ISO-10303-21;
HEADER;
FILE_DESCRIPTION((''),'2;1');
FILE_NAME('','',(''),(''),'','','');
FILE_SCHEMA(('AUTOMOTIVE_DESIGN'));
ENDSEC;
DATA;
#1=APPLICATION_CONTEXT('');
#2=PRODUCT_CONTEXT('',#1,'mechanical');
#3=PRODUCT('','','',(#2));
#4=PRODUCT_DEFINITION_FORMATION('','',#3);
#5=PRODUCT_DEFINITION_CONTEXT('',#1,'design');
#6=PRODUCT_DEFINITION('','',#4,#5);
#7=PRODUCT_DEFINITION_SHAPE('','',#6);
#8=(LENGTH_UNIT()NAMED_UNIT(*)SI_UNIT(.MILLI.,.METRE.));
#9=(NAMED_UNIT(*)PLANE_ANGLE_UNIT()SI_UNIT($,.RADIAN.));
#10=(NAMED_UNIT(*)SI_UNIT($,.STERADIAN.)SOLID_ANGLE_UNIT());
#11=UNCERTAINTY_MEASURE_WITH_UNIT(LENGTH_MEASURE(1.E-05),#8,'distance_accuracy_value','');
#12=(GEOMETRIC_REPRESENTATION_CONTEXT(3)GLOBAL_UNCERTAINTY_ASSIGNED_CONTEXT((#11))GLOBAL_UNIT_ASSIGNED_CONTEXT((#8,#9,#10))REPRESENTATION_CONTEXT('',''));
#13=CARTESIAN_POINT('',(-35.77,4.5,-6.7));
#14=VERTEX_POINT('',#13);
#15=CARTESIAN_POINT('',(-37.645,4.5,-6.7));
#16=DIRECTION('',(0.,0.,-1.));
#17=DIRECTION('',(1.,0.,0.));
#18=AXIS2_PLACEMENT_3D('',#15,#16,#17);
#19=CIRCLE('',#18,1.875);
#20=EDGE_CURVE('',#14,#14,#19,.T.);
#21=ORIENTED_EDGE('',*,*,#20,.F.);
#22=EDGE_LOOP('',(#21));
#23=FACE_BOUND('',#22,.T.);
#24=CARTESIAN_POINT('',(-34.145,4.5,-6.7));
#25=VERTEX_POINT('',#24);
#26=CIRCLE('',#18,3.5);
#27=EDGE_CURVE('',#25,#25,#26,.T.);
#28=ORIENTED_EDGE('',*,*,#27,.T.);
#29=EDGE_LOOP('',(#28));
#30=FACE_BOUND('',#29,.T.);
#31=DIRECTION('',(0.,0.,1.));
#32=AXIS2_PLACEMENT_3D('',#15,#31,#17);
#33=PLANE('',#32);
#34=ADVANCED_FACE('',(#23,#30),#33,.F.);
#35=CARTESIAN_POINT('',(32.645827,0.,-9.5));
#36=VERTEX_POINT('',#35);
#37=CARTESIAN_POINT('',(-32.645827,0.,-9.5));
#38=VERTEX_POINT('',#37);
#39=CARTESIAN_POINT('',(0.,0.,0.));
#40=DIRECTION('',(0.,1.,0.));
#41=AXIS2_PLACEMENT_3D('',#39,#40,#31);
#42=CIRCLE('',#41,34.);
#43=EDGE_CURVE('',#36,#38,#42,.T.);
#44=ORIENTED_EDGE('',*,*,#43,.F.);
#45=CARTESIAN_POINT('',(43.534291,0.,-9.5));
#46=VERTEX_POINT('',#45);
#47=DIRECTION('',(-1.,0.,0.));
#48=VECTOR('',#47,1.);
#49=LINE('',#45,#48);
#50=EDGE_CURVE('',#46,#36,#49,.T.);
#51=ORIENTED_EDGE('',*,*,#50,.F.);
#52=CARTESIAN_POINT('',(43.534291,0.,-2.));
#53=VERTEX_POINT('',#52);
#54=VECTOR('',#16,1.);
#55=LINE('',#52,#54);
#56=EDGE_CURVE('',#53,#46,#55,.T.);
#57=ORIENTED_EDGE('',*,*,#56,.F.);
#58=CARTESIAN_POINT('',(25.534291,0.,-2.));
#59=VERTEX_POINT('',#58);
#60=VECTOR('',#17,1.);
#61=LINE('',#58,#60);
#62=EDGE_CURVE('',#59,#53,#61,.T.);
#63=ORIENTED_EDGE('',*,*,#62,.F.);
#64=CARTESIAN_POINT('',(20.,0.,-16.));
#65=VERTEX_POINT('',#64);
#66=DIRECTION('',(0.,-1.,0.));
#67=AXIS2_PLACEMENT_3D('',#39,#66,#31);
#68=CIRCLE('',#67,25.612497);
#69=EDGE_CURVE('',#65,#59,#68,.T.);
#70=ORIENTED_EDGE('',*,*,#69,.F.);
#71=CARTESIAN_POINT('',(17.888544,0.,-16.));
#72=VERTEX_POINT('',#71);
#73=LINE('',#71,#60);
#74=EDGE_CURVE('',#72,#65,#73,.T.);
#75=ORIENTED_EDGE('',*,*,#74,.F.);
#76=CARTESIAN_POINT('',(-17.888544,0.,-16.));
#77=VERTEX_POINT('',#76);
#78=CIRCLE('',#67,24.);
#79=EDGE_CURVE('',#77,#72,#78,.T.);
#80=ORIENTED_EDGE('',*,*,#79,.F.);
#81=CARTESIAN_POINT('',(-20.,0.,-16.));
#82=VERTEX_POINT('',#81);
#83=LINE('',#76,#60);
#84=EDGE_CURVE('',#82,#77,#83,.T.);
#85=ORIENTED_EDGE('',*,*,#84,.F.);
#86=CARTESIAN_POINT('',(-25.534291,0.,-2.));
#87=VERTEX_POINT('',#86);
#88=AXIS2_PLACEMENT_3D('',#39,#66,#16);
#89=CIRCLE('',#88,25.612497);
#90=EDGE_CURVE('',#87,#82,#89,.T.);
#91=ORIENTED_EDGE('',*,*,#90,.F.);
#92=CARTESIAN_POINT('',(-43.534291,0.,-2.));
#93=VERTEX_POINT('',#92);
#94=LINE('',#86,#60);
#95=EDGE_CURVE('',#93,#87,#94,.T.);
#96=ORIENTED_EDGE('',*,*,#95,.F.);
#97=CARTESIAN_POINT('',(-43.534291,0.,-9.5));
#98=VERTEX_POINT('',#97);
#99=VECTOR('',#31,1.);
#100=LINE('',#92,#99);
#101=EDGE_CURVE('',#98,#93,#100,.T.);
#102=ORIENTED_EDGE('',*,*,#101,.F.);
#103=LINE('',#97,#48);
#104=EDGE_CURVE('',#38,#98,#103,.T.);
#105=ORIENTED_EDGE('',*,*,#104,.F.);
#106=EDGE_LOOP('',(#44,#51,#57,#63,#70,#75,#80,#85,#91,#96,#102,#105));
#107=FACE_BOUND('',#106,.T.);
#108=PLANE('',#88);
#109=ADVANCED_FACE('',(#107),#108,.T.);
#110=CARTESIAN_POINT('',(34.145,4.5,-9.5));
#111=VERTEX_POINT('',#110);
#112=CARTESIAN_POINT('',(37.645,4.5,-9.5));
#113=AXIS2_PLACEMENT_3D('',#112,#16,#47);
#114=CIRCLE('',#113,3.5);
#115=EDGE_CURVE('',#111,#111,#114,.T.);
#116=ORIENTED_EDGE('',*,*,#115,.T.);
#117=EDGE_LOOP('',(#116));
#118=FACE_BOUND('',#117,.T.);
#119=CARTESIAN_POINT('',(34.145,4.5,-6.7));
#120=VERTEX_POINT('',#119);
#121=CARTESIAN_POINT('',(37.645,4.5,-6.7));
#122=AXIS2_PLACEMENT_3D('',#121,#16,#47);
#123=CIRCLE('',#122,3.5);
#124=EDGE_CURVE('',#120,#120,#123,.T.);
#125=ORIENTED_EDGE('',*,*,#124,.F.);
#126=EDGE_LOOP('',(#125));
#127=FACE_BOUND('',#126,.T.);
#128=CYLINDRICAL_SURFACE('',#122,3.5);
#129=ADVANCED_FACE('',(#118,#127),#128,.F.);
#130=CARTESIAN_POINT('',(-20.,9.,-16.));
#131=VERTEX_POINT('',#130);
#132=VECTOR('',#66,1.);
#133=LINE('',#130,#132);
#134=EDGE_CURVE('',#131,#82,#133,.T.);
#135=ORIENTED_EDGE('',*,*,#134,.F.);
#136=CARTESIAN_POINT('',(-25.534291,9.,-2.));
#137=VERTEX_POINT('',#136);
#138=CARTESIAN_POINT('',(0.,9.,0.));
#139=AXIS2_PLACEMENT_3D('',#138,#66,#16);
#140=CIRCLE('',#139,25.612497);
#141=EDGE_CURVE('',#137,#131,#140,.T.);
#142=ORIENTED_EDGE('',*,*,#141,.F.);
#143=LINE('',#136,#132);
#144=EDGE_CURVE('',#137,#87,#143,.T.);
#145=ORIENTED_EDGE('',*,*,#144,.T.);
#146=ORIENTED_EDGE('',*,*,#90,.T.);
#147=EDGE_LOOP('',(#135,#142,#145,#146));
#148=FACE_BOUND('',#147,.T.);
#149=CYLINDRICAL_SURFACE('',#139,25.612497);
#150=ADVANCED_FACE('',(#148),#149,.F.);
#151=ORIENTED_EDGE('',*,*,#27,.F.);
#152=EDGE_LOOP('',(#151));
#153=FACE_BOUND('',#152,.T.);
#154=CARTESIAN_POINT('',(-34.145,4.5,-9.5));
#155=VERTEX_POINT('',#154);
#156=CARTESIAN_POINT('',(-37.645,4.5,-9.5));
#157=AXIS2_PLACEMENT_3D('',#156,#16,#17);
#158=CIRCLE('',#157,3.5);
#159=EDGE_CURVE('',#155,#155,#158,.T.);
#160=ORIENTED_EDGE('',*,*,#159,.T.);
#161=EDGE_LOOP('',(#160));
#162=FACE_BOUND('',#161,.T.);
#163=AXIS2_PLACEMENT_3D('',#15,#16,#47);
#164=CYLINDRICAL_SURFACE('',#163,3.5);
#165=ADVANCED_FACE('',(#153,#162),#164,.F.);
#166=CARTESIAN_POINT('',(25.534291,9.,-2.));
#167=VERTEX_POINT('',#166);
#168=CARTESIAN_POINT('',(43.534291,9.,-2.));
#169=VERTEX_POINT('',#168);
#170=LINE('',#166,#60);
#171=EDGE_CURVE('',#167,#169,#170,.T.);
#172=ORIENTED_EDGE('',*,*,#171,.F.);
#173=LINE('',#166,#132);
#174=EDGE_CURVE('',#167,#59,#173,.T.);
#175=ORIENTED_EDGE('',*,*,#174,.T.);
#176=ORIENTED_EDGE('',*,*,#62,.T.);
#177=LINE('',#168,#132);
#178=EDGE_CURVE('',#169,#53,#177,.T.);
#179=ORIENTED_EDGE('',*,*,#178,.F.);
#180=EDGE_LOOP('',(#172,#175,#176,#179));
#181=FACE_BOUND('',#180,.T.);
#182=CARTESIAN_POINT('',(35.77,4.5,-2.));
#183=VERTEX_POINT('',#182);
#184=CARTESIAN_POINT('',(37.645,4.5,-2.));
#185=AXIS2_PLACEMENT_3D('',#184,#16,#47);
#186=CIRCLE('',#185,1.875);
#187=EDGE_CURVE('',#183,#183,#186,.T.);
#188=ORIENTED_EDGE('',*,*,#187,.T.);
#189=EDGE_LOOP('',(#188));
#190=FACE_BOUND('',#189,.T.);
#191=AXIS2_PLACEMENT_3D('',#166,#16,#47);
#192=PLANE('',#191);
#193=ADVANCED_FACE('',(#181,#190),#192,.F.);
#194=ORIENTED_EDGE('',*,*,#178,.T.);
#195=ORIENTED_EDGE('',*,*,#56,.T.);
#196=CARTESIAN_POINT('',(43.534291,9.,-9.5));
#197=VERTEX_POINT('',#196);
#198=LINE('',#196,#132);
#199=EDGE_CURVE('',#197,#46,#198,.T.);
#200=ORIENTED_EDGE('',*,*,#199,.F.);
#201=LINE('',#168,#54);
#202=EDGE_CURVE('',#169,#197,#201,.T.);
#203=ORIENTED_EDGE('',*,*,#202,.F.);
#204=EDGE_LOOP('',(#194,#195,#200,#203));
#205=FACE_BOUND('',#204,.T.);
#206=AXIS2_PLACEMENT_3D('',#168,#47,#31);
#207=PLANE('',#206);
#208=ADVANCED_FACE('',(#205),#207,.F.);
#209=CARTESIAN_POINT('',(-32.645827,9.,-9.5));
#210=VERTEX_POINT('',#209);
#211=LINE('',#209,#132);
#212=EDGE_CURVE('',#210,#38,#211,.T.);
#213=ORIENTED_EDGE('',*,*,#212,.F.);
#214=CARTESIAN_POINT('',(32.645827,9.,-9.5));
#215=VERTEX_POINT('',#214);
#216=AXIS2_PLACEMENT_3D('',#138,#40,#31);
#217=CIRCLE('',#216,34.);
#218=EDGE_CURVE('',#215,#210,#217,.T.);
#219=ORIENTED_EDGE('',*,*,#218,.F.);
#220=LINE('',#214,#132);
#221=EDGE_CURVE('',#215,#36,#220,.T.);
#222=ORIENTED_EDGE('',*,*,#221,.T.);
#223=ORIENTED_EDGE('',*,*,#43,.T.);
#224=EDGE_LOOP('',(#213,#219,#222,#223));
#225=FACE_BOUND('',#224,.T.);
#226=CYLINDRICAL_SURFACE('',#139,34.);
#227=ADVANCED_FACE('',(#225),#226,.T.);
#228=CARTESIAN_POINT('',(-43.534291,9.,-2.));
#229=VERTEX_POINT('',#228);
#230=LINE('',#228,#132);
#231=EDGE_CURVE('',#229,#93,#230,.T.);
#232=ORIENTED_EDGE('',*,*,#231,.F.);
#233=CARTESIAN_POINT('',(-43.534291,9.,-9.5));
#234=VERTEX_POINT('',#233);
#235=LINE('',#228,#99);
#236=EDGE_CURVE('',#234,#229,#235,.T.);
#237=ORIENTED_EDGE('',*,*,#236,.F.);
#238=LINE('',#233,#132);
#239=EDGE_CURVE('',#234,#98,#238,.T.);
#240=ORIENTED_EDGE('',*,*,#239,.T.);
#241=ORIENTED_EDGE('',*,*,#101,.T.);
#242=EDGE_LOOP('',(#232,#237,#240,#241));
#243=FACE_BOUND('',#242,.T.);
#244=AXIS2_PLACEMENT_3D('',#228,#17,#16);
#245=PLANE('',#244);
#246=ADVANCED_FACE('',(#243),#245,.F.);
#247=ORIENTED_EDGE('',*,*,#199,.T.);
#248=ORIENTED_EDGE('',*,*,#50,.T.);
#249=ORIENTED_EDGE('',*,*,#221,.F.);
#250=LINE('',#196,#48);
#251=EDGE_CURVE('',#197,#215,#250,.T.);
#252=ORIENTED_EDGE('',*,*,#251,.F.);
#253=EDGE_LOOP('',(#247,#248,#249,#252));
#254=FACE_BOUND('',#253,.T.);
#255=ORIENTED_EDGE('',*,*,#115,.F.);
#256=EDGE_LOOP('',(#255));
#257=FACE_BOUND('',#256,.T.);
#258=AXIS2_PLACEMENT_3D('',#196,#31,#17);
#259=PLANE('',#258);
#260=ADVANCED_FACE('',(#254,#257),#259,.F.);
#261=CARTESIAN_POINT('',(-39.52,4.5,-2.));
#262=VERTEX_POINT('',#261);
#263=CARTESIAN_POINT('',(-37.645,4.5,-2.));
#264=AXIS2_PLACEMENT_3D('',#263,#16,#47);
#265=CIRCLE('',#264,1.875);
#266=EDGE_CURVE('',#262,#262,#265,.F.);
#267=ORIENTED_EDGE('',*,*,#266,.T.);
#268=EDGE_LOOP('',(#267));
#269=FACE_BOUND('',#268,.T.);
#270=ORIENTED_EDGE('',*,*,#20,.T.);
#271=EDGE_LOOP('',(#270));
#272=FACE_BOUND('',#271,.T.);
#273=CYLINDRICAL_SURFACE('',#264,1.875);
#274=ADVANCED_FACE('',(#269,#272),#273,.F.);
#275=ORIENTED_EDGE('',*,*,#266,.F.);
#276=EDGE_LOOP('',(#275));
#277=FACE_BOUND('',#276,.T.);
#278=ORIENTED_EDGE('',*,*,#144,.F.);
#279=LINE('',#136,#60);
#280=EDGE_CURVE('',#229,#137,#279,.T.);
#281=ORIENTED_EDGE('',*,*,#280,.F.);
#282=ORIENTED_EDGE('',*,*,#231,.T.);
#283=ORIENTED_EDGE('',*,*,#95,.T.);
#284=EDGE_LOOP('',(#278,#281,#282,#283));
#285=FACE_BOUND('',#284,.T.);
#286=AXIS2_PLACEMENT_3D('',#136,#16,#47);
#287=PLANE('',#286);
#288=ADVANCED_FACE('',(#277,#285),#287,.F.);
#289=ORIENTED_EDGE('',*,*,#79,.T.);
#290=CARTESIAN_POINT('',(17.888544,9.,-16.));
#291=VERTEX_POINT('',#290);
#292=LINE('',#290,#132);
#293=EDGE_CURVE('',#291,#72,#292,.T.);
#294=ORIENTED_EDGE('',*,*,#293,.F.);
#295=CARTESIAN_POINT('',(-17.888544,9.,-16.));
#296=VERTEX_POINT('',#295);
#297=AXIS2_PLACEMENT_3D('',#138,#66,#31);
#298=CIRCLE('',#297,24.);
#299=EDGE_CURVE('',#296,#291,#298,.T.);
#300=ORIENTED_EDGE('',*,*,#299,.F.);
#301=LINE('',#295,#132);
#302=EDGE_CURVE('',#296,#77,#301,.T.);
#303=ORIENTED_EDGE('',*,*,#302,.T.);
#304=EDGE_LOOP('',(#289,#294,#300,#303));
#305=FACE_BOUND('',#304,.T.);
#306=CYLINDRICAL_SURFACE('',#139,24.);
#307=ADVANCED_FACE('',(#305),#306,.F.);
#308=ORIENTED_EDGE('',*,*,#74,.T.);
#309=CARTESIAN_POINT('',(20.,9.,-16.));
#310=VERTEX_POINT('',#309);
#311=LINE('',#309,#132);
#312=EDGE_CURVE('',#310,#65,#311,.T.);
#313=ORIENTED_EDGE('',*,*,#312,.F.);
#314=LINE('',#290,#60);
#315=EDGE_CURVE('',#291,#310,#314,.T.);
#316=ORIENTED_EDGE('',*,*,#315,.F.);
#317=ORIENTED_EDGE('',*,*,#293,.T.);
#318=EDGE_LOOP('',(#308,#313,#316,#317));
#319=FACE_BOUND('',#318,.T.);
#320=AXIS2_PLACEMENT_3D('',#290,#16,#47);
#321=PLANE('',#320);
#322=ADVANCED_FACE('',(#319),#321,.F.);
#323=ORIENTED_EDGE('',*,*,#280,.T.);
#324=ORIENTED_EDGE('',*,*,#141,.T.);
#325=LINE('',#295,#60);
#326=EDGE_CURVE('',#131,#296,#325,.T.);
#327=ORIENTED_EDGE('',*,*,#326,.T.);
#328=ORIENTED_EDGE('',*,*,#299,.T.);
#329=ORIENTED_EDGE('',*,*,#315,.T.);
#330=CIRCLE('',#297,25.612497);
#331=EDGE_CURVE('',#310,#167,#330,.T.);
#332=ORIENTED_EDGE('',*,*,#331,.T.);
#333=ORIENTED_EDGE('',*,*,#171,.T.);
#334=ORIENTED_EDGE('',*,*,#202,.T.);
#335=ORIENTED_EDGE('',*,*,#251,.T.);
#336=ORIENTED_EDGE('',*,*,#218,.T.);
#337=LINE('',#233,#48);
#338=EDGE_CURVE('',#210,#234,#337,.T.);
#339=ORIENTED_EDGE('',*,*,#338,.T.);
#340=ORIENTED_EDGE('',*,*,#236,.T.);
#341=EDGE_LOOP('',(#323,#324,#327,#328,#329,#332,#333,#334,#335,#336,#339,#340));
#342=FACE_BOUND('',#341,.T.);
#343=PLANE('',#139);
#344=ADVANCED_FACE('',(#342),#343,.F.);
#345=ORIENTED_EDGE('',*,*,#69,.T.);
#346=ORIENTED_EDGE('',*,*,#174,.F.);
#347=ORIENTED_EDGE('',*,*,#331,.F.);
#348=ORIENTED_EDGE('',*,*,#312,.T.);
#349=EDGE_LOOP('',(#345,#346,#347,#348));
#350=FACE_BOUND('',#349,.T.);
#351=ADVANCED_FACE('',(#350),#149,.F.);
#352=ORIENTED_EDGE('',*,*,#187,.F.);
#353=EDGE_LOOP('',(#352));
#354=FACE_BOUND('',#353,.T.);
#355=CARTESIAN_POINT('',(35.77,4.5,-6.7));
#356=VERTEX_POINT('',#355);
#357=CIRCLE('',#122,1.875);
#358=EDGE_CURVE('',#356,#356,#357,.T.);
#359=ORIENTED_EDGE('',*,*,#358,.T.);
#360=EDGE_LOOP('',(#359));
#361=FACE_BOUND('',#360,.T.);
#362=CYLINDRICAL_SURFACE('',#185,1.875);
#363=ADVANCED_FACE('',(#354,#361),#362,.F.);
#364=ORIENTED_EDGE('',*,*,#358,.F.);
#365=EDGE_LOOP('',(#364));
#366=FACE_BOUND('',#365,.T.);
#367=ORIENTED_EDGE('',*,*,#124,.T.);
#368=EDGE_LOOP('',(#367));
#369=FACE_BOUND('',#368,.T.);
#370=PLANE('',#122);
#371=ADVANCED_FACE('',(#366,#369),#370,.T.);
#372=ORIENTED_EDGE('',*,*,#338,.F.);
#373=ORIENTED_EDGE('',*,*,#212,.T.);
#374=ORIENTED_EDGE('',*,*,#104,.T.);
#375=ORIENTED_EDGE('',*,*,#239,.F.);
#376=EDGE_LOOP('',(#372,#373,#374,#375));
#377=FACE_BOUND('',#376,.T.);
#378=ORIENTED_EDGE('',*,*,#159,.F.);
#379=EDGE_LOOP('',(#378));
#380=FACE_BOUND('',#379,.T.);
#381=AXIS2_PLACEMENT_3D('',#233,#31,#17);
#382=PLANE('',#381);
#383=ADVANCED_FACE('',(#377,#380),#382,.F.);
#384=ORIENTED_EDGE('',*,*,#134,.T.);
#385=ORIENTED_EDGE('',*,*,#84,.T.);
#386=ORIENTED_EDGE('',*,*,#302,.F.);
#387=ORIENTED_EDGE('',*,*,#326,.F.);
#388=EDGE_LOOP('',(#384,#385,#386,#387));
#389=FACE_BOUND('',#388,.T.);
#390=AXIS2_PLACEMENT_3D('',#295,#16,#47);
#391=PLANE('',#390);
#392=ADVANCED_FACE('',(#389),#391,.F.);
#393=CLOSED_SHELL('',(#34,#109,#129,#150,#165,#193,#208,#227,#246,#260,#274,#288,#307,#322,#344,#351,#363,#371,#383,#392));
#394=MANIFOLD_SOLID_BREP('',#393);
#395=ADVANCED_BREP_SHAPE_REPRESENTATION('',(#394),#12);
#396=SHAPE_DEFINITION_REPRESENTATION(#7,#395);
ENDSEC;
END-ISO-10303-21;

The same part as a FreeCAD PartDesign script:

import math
import FreeCAD as App
import Part
import Sketcher

V = App.Vector
Q = App.Units.Quantity

doc = App.newDocument("Part")
params = doc.addObject("Spreadsheet::Sheet", "Params")
for row, (alias, value) in enumerate([
    ("sketch1_radius", "34 mm"),
    ("sketch1_radius2", "24 mm"),
    ("sketch1_width", "18 mm"),
    ("sketch1_height", "7.5 mm"),
    ("pad1_length", "9 mm"),
    ("sketch2_diameter", "3.75 mm"),
    ("sketch3_diameter", "7 mm"),
    ("sketch3_diameter2", "3.75 mm"),
    ("pocket2_length", "2.8 mm"),
], start=1):
    params.set(f"A{row}", alias)
    params.set(f"B{row}", "=" + value)
    params.setAlias(f"B{row}", alias)

body = doc.addObject("PartDesign::Body", "Body")

sketch1 = body.newObject("Sketcher::SketchObject", "Sketch")
sketch1.AttachmentSupport = (doc.getObject("XZ_Plane"), [""])
sketch1.MapMode = "FlatFace"
sketch1.addGeometry(Part.LineSegment(V(17.9, -16, 0), V(20, -16, 0)), False)
sketch1.addGeometry(Part.ArcOfCircle(Part.Circle(V(0, 0, 0), V(0, 0, 1), 25.6), math.radians(-39), math.radians(-4)), False)
sketch1.addGeometry(Part.LineSegment(V(25.5, -2, 0), V(43.5, -2, 0)), False)
sketch1.addGeometry(Part.LineSegment(V(43.5, -2, 0), V(43.5, -9.5, 0)), False)
sketch1.addGeometry(Part.LineSegment(V(43.5, -9.5, 0), V(32.6, -9.5, 0)), False)
sketch1.addGeometry(Part.ArcOfCircle(Part.Circle(V(0, 0, 0), V(0, 0, 1), 34), math.radians(-164), math.radians(-16)), False)
sketch1.addGeometry(Part.LineSegment(V(-32.6, -9.5, 0), V(-43.5, -9.5, 0)), False)
sketch1.addGeometry(Part.LineSegment(V(-43.5, -9.5, 0), V(-43.5, -2, 0)), False)
sketch1.addGeometry(Part.LineSegment(V(-43.5, -2, 0), V(-25.5, -2, 0)), False)
sketch1.addGeometry(Part.ArcOfCircle(Part.Circle(V(0, 0, 0), V(0, 0, 1), 25.6), math.radians(-176), math.radians(-141)), False)
sketch1.addGeometry(Part.LineSegment(V(-20, -16, 0), V(-17.9, -16, 0)), False)
sketch1.addGeometry(Part.ArcOfCircle(Part.Circle(V(0, 0, 0), V(0, 0, 1), 24), math.radians(-138), math.radians(-42)), False)
sketch1.addConstraint(Sketcher.Constraint("Coincident", 0, 2, 1, 1))
sketch1.addConstraint(Sketcher.Constraint("Coincident", 1, 2, 2, 1))
sketch1.addConstraint(Sketcher.Constraint("Coincident", 2, 2, 3, 1))
sketch1.addConstraint(Sketcher.Constraint("Coincident", 3, 2, 4, 1))
sketch1.addConstraint(Sketcher.Constraint("Coincident", 4, 2, 5, 2))
sketch1.addConstraint(Sketcher.Constraint("Coincident", 5, 1, 6, 1))
sketch1.addConstraint(Sketcher.Constraint("Coincident", 6, 2, 7, 1))
sketch1.addConstraint(Sketcher.Constraint("Coincident", 7, 2, 8, 1))
sketch1.addConstraint(Sketcher.Constraint("Coincident", 8, 2, 9, 1))
sketch1.addConstraint(Sketcher.Constraint("Coincident", 9, 2, 10, 1))
sketch1.addConstraint(Sketcher.Constraint("Coincident", 10, 2, 11, 1))
sketch1.addConstraint(Sketcher.Constraint("Coincident", 11, 2, 0, 1))
sketch1.addConstraint(Sketcher.Constraint("Horizontal", 0))
sketch1.addConstraint(Sketcher.Constraint("Horizontal", 2))
sketch1.addConstraint(Sketcher.Constraint("Vertical", 3))
sketch1.addConstraint(Sketcher.Constraint("Horizontal", 4))
sketch1.addConstraint(Sketcher.Constraint("Horizontal", 6))
sketch1.addConstraint(Sketcher.Constraint("Vertical", 7))
sketch1.addConstraint(Sketcher.Constraint("Horizontal", 8))
sketch1.addConstraint(Sketcher.Constraint("Horizontal", 10))
sketch1.addConstraint(Sketcher.Constraint("Coincident", 1, 3, -1, 1))
sketch1.addConstraint(Sketcher.Constraint("Coincident", 5, 3, -1, 1))
sketch1.addConstraint(Sketcher.Constraint("Coincident", 9, 3, -1, 1))
sketch1.addConstraint(Sketcher.Constraint("Coincident", 11, 3, -1, 1))
sketch1.addConstraint(Sketcher.Constraint("Equal", 1, 9))
sketch1.addConstraint(Sketcher.Constraint("Symmetric", 3, 2, 6, 2, -2))
sketch1.addConstraint(Sketcher.Constraint("Horizontal", 2, 2, 7, 2))
sketch1.addConstraint(Sketcher.Constraint("Horizontal", 0, 2, 9, 2))
sketch1.addConstraint(Sketcher.Constraint("Radius", 5, Q("34 mm")))
sketch1.addConstraint(Sketcher.Constraint("Radius", 11, Q("24 mm")))
sketch1.addConstraint(Sketcher.Constraint("DistanceX", 2, 1, 2, 2, Q("18 mm")))
sketch1.addConstraint(Sketcher.Constraint("DistanceY", 3, 2, 3, 1, Q("7.5 mm")))
sketch1.addConstraint(Sketcher.Constraint("DistanceX", -1, 1, 0, 2, Q("20 mm")))
sketch1.addConstraint(Sketcher.Constraint("DistanceY", 0, 2, -1, 1, Q("16 mm")))
sketch1.addConstraint(Sketcher.Constraint("DistanceY", 1, 2, -1, 1, Q("2 mm")))
sketch1.setExpression("Constraints[28]", "Params.sketch1_radius")
sketch1.setExpression("Constraints[29]", "Params.sketch1_radius2")
sketch1.setExpression("Constraints[30]", "Params.sketch1_width")
sketch1.setExpression("Constraints[31]", "Params.sketch1_height")
pad1 = body.newObject("PartDesign::Pad", "Pad")
pad1.Profile = sketch1
pad1.setExpression("Length", "Params.pad1_length")
pad1.Reversed = True

sketch2 = body.newObject("Sketcher::SketchObject", "Sketch001")
sketch2.AttachmentSupport = (doc.getObject("XY_Plane"), [""])
sketch2.MapMode = "FlatFace"
sketch2.AttachmentOffset = App.Placement(V(0, 0, -9.5), App.Rotation())
sketch2.addGeometry(Part.Circle(V(-37.6, 4.5, 0), V(0, 0, 1), 1.9), False)
sketch2.addGeometry(Part.Circle(V(37.6, 4.5, 0), V(0, 0, 1), 1.9), False)
sketch2.addConstraint(Sketcher.Constraint("Equal", 0, 1))
sketch2.addConstraint(Sketcher.Constraint("Symmetric", 0, 3, 1, 3, -2))
sketch2.addConstraint(Sketcher.Constraint("Diameter", 0, Q("3.75 mm")))
sketch2.addConstraint(Sketcher.Constraint("DistanceY", -1, 1, 0, 3, Q("4.5 mm")))
sketch2.addConstraint(Sketcher.Constraint("DistanceX", 0, 3, 1, 3, Q("75.29 mm")))
sketch2.setExpression("Constraints[2]", "Params.sketch2_diameter")
pocket1 = body.newObject("PartDesign::Pocket", "Pocket")
pocket1.Profile = sketch2
pocket1.Type = "ThroughAll"
pocket1.Reversed = True

sketch3 = body.newObject("Sketcher::SketchObject", "Sketch002")
sketch3.AttachmentSupport = (doc.getObject("XY_Plane"), [""])
sketch3.MapMode = "FlatFace"
sketch3.AttachmentOffset = App.Placement(V(0, 0, -9.5), App.Rotation())
sketch3.addGeometry(Part.Circle(V(37.6, 4.5, 0), V(0, 0, 1), 3.5), False)
sketch3.addGeometry(Part.Circle(V(37.6, 4.5, 0), V(0, 0, 1), 1.9), False)
sketch3.addGeometry(Part.Circle(V(-37.6, 4.5, 0), V(0, 0, 1), 3.5), False)
sketch3.addGeometry(Part.Circle(V(-37.6, 4.5, 0), V(0, 0, 1), 1.9), False)
sketch3.addConstraint(Sketcher.Constraint("Coincident", 1, 3, 0, 3))
sketch3.addConstraint(Sketcher.Constraint("Coincident", 3, 3, 2, 3))
sketch3.addConstraint(Sketcher.Constraint("Equal", 0, 2))
sketch3.addConstraint(Sketcher.Constraint("Equal", 1, 3))
sketch3.addConstraint(Sketcher.Constraint("Symmetric", 0, 3, 2, 3, -2))
sketch3.addConstraint(Sketcher.Constraint("Diameter", 0, Q("7 mm")))
sketch3.addConstraint(Sketcher.Constraint("Diameter", 1, Q("3.75 mm")))
sketch3.addConstraint(Sketcher.Constraint("DistanceY", -1, 1, 0, 3, Q("4.5 mm")))
sketch3.addConstraint(Sketcher.Constraint("DistanceX", 2, 3, 0, 3, Q("75.29 mm")))
sketch3.setExpression("Constraints[5]", "Params.sketch3_diameter")
sketch3.setExpression("Constraints[6]", "Params.sketch3_diameter2")
pocket2 = body.newObject("PartDesign::Pocket", "Pocket001")
pocket2.Profile = sketch3
pocket2.setExpression("Length", "Params.pocket2_length")
pocket2.Reversed = True

doc.recompute()
